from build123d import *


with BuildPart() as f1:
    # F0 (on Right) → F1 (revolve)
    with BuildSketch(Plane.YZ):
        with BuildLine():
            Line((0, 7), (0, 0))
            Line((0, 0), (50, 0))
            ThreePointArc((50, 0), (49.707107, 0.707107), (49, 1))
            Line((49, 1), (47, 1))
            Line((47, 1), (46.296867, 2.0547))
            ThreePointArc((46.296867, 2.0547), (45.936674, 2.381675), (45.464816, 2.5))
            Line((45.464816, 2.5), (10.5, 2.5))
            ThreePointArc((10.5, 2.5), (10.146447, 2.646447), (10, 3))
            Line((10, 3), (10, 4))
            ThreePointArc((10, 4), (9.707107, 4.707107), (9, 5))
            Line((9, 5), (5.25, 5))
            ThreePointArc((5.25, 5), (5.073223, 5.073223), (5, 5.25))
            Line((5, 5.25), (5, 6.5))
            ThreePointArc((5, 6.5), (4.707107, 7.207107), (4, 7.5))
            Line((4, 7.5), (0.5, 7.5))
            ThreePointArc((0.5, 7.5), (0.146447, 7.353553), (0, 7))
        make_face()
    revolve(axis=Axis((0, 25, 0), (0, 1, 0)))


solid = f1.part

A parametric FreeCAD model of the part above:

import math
import FreeCAD as App
import Part
import Sketcher

V = App.Vector
Q = App.Units.Quantity

doc = App.newDocument("Part")
body = doc.addObject("PartDesign::Body", "Body")

# Sketch on YZ plane
sketch1 = body.newObject("Sketcher::SketchObject", "Sketch")
sketch1.AttachmentSupport = (doc.getObject("YZ_Plane"), [""])
sketch1.MapMode = "FlatFace"
sketch1.addGeometry([
    Part.LineSegment(V(0, 7, 0), V(0, 0, 0)),  # 0
    Part.LineSegment(V(0, 0, 0), V(50, 0, 0)),  # 1
    Part.ArcOfCircle(Part.Circle(V(49, 0, 0), V(0, 0, 1), 1), math.radians(0), math.radians(90)),  # 2
    Part.LineSegment(V(49, 1, 0), V(47, 1, 0)),  # 3
    Part.LineSegment(V(47, 1, 0), V(46.3, 2.05, 0)),  # 4
    Part.ArcOfCircle(Part.Circle(V(45.46, 1.5, 0), V(0, 0, 1), 1), math.radians(34), math.radians(90)),  # 5
    Part.LineSegment(V(45.46, 2.5, 0), V(10.5, 2.5, 0)),  # 6
    Part.ArcOfCircle(Part.Circle(V(10.5, 3, 0), V(0, 0, 1), 0.5), math.radians(-180), math.radians(-90)),  # 7
    Part.LineSegment(V(10, 3, 0), V(10, 4, 0)),  # 8
    Part.ArcOfCircle(Part.Circle(V(9, 4, 0), V(0, 0, 1), 1), math.radians(0), math.radians(90)),  # 9
    Part.LineSegment(V(9, 5, 0), V(5.25, 5, 0)),  # 10
    Part.ArcOfCircle(Part.Circle(V(5.25, 5.25, 0), V(0, 0, 1), 0.25), math.radians(180), math.radians(270)),  # 11
    Part.LineSegment(V(5, 5.25, 0), V(5, 6.5, 0)),  # 12
    Part.ArcOfCircle(Part.Circle(V(4, 6.5, 0), V(0, 0, 1), 1), math.radians(0), math.radians(90)),  # 13
    Part.LineSegment(V(4, 7.5, 0), V(0.5, 7.5, 0)),  # 14
    Part.ArcOfCircle(Part.Circle(V(0.5, 7, 0), V(0, 0, 1), 0.5), math.radians(90), math.radians(180)),  # 15
], False)
sketch1.addConstraint([
    Sketcher.Constraint("Coincident", 0, 2, 1, 1),
    Sketcher.Constraint("Coincident", 1, 2, 2, 1),
    Sketcher.Constraint("Tangent", 2, 2, 3, 1),
    Sketcher.Constraint("Coincident", 3, 2, 4, 1),
    Sketcher.Constraint("Tangent", 4, 2, 5, 1),
    Sketcher.Constraint("Tangent", 5, 2, 6, 1),
    Sketcher.Constraint("Coincident", 6, 2, 7, 2),
    Sketcher.Constraint("Coincident", 7, 1, 8, 1),
    Sketcher.Constraint("Tangent", 8, 2, 9, 1),
    Sketcher.Constraint("Tangent", 9, 2, 10, 1),
    Sketcher.Constraint("Coincident", 10, 2, 11, 2),
    Sketcher.Constraint("Coincident", 11, 1, 12, 1),
    Sketcher.Constraint("Tangent", 12, 2, 13, 1),
    Sketcher.Constraint("Tangent", 13, 2, 14, 1),
    Sketcher.Constraint("Coincident", 14, 2, 15, 1),
    Sketcher.Constraint("Coincident", 15, 2, 0, 1),
    Sketcher.Constraint("Vertical", 0),
    Sketcher.Constraint("Horizontal", 1),
    Sketcher.Constraint("Horizontal", 3),
    Sketcher.Constraint("Horizontal", 6),
    Sketcher.Constraint("Vertical", 8),
    Sketcher.Constraint("Horizontal", 10),
    Sketcher.Constraint("Vertical", 12),
    Sketcher.Constraint("Horizontal", 14),
    Sketcher.Constraint("Coincident", 0, 2, -1, 1),
    Sketcher.Constraint("Equal", 2, 5),
    Sketcher.Constraint("Equal", 5, 9),
    Sketcher.Constraint("Equal", 9, 13),
    Sketcher.Constraint("Equal", 7, 15),
    Sketcher.Constraint("PointOnObject", 2, 3, -1),
    Sketcher.Constraint("Vertical", 7, 3, 6, 2),
    Sketcher.Constraint("Vertical", 11, 3, 10, 2),
    Sketcher.Constraint("Vertical", 15, 3, 14, 2),
    Sketcher.Constraint("Radius", 2, Q("0.999999 mm")),
    Sketcher.Constraint("Radius", 7, Q("0.500001 mm")),
    Sketcher.Constraint("DistanceX", 1, 1, 1, 2, Q("50 mm")),
    Sketcher.Constraint("DistanceX", 3, 2, 3, 1, Q("2 mm")),
    Sketcher.Constraint("DistanceY", 0, 2, 0, 1, Q("7 mm")),
    Sketcher.Constraint("DistanceY", 8, 1, 8, 2, Q("1 mm")),
    Sketcher.Constraint("Radius", 11, Q("0.249999 mm")),
    Sketcher.Constraint("DistanceX", 14, 2, 14, 1, Q("3.5 mm")),
    Sketcher.Constraint("DistanceY", -1, 1, 7, 3, Q("3.000001 mm")),
    Sketcher.Constraint("DistanceX", -1, 1, 9, 3, Q("9.000001 mm")),
    Sketcher.Constraint("DistanceY", -1, 1, 9, 3, Q("4.000001 mm")),
    Sketcher.Constraint("DistanceY", -1, 1, 15, 3, Q("6.999999 mm")),
    Sketcher.Constraint("DistanceY", 12, 1, 12, 2, Q("1.25 mm")),
    Sketcher.Constraint("DistanceY", -1, 1, 4, 2, Q("2.0547 mm")),
])
revolution = body.newObject("PartDesign::Revolution", "Revolution")
revolution.Profile = sketch1
revolution.ReferenceAxis = (sketch1, ["H_Axis"])
revolution.Angle = 360

doc.recompute()
